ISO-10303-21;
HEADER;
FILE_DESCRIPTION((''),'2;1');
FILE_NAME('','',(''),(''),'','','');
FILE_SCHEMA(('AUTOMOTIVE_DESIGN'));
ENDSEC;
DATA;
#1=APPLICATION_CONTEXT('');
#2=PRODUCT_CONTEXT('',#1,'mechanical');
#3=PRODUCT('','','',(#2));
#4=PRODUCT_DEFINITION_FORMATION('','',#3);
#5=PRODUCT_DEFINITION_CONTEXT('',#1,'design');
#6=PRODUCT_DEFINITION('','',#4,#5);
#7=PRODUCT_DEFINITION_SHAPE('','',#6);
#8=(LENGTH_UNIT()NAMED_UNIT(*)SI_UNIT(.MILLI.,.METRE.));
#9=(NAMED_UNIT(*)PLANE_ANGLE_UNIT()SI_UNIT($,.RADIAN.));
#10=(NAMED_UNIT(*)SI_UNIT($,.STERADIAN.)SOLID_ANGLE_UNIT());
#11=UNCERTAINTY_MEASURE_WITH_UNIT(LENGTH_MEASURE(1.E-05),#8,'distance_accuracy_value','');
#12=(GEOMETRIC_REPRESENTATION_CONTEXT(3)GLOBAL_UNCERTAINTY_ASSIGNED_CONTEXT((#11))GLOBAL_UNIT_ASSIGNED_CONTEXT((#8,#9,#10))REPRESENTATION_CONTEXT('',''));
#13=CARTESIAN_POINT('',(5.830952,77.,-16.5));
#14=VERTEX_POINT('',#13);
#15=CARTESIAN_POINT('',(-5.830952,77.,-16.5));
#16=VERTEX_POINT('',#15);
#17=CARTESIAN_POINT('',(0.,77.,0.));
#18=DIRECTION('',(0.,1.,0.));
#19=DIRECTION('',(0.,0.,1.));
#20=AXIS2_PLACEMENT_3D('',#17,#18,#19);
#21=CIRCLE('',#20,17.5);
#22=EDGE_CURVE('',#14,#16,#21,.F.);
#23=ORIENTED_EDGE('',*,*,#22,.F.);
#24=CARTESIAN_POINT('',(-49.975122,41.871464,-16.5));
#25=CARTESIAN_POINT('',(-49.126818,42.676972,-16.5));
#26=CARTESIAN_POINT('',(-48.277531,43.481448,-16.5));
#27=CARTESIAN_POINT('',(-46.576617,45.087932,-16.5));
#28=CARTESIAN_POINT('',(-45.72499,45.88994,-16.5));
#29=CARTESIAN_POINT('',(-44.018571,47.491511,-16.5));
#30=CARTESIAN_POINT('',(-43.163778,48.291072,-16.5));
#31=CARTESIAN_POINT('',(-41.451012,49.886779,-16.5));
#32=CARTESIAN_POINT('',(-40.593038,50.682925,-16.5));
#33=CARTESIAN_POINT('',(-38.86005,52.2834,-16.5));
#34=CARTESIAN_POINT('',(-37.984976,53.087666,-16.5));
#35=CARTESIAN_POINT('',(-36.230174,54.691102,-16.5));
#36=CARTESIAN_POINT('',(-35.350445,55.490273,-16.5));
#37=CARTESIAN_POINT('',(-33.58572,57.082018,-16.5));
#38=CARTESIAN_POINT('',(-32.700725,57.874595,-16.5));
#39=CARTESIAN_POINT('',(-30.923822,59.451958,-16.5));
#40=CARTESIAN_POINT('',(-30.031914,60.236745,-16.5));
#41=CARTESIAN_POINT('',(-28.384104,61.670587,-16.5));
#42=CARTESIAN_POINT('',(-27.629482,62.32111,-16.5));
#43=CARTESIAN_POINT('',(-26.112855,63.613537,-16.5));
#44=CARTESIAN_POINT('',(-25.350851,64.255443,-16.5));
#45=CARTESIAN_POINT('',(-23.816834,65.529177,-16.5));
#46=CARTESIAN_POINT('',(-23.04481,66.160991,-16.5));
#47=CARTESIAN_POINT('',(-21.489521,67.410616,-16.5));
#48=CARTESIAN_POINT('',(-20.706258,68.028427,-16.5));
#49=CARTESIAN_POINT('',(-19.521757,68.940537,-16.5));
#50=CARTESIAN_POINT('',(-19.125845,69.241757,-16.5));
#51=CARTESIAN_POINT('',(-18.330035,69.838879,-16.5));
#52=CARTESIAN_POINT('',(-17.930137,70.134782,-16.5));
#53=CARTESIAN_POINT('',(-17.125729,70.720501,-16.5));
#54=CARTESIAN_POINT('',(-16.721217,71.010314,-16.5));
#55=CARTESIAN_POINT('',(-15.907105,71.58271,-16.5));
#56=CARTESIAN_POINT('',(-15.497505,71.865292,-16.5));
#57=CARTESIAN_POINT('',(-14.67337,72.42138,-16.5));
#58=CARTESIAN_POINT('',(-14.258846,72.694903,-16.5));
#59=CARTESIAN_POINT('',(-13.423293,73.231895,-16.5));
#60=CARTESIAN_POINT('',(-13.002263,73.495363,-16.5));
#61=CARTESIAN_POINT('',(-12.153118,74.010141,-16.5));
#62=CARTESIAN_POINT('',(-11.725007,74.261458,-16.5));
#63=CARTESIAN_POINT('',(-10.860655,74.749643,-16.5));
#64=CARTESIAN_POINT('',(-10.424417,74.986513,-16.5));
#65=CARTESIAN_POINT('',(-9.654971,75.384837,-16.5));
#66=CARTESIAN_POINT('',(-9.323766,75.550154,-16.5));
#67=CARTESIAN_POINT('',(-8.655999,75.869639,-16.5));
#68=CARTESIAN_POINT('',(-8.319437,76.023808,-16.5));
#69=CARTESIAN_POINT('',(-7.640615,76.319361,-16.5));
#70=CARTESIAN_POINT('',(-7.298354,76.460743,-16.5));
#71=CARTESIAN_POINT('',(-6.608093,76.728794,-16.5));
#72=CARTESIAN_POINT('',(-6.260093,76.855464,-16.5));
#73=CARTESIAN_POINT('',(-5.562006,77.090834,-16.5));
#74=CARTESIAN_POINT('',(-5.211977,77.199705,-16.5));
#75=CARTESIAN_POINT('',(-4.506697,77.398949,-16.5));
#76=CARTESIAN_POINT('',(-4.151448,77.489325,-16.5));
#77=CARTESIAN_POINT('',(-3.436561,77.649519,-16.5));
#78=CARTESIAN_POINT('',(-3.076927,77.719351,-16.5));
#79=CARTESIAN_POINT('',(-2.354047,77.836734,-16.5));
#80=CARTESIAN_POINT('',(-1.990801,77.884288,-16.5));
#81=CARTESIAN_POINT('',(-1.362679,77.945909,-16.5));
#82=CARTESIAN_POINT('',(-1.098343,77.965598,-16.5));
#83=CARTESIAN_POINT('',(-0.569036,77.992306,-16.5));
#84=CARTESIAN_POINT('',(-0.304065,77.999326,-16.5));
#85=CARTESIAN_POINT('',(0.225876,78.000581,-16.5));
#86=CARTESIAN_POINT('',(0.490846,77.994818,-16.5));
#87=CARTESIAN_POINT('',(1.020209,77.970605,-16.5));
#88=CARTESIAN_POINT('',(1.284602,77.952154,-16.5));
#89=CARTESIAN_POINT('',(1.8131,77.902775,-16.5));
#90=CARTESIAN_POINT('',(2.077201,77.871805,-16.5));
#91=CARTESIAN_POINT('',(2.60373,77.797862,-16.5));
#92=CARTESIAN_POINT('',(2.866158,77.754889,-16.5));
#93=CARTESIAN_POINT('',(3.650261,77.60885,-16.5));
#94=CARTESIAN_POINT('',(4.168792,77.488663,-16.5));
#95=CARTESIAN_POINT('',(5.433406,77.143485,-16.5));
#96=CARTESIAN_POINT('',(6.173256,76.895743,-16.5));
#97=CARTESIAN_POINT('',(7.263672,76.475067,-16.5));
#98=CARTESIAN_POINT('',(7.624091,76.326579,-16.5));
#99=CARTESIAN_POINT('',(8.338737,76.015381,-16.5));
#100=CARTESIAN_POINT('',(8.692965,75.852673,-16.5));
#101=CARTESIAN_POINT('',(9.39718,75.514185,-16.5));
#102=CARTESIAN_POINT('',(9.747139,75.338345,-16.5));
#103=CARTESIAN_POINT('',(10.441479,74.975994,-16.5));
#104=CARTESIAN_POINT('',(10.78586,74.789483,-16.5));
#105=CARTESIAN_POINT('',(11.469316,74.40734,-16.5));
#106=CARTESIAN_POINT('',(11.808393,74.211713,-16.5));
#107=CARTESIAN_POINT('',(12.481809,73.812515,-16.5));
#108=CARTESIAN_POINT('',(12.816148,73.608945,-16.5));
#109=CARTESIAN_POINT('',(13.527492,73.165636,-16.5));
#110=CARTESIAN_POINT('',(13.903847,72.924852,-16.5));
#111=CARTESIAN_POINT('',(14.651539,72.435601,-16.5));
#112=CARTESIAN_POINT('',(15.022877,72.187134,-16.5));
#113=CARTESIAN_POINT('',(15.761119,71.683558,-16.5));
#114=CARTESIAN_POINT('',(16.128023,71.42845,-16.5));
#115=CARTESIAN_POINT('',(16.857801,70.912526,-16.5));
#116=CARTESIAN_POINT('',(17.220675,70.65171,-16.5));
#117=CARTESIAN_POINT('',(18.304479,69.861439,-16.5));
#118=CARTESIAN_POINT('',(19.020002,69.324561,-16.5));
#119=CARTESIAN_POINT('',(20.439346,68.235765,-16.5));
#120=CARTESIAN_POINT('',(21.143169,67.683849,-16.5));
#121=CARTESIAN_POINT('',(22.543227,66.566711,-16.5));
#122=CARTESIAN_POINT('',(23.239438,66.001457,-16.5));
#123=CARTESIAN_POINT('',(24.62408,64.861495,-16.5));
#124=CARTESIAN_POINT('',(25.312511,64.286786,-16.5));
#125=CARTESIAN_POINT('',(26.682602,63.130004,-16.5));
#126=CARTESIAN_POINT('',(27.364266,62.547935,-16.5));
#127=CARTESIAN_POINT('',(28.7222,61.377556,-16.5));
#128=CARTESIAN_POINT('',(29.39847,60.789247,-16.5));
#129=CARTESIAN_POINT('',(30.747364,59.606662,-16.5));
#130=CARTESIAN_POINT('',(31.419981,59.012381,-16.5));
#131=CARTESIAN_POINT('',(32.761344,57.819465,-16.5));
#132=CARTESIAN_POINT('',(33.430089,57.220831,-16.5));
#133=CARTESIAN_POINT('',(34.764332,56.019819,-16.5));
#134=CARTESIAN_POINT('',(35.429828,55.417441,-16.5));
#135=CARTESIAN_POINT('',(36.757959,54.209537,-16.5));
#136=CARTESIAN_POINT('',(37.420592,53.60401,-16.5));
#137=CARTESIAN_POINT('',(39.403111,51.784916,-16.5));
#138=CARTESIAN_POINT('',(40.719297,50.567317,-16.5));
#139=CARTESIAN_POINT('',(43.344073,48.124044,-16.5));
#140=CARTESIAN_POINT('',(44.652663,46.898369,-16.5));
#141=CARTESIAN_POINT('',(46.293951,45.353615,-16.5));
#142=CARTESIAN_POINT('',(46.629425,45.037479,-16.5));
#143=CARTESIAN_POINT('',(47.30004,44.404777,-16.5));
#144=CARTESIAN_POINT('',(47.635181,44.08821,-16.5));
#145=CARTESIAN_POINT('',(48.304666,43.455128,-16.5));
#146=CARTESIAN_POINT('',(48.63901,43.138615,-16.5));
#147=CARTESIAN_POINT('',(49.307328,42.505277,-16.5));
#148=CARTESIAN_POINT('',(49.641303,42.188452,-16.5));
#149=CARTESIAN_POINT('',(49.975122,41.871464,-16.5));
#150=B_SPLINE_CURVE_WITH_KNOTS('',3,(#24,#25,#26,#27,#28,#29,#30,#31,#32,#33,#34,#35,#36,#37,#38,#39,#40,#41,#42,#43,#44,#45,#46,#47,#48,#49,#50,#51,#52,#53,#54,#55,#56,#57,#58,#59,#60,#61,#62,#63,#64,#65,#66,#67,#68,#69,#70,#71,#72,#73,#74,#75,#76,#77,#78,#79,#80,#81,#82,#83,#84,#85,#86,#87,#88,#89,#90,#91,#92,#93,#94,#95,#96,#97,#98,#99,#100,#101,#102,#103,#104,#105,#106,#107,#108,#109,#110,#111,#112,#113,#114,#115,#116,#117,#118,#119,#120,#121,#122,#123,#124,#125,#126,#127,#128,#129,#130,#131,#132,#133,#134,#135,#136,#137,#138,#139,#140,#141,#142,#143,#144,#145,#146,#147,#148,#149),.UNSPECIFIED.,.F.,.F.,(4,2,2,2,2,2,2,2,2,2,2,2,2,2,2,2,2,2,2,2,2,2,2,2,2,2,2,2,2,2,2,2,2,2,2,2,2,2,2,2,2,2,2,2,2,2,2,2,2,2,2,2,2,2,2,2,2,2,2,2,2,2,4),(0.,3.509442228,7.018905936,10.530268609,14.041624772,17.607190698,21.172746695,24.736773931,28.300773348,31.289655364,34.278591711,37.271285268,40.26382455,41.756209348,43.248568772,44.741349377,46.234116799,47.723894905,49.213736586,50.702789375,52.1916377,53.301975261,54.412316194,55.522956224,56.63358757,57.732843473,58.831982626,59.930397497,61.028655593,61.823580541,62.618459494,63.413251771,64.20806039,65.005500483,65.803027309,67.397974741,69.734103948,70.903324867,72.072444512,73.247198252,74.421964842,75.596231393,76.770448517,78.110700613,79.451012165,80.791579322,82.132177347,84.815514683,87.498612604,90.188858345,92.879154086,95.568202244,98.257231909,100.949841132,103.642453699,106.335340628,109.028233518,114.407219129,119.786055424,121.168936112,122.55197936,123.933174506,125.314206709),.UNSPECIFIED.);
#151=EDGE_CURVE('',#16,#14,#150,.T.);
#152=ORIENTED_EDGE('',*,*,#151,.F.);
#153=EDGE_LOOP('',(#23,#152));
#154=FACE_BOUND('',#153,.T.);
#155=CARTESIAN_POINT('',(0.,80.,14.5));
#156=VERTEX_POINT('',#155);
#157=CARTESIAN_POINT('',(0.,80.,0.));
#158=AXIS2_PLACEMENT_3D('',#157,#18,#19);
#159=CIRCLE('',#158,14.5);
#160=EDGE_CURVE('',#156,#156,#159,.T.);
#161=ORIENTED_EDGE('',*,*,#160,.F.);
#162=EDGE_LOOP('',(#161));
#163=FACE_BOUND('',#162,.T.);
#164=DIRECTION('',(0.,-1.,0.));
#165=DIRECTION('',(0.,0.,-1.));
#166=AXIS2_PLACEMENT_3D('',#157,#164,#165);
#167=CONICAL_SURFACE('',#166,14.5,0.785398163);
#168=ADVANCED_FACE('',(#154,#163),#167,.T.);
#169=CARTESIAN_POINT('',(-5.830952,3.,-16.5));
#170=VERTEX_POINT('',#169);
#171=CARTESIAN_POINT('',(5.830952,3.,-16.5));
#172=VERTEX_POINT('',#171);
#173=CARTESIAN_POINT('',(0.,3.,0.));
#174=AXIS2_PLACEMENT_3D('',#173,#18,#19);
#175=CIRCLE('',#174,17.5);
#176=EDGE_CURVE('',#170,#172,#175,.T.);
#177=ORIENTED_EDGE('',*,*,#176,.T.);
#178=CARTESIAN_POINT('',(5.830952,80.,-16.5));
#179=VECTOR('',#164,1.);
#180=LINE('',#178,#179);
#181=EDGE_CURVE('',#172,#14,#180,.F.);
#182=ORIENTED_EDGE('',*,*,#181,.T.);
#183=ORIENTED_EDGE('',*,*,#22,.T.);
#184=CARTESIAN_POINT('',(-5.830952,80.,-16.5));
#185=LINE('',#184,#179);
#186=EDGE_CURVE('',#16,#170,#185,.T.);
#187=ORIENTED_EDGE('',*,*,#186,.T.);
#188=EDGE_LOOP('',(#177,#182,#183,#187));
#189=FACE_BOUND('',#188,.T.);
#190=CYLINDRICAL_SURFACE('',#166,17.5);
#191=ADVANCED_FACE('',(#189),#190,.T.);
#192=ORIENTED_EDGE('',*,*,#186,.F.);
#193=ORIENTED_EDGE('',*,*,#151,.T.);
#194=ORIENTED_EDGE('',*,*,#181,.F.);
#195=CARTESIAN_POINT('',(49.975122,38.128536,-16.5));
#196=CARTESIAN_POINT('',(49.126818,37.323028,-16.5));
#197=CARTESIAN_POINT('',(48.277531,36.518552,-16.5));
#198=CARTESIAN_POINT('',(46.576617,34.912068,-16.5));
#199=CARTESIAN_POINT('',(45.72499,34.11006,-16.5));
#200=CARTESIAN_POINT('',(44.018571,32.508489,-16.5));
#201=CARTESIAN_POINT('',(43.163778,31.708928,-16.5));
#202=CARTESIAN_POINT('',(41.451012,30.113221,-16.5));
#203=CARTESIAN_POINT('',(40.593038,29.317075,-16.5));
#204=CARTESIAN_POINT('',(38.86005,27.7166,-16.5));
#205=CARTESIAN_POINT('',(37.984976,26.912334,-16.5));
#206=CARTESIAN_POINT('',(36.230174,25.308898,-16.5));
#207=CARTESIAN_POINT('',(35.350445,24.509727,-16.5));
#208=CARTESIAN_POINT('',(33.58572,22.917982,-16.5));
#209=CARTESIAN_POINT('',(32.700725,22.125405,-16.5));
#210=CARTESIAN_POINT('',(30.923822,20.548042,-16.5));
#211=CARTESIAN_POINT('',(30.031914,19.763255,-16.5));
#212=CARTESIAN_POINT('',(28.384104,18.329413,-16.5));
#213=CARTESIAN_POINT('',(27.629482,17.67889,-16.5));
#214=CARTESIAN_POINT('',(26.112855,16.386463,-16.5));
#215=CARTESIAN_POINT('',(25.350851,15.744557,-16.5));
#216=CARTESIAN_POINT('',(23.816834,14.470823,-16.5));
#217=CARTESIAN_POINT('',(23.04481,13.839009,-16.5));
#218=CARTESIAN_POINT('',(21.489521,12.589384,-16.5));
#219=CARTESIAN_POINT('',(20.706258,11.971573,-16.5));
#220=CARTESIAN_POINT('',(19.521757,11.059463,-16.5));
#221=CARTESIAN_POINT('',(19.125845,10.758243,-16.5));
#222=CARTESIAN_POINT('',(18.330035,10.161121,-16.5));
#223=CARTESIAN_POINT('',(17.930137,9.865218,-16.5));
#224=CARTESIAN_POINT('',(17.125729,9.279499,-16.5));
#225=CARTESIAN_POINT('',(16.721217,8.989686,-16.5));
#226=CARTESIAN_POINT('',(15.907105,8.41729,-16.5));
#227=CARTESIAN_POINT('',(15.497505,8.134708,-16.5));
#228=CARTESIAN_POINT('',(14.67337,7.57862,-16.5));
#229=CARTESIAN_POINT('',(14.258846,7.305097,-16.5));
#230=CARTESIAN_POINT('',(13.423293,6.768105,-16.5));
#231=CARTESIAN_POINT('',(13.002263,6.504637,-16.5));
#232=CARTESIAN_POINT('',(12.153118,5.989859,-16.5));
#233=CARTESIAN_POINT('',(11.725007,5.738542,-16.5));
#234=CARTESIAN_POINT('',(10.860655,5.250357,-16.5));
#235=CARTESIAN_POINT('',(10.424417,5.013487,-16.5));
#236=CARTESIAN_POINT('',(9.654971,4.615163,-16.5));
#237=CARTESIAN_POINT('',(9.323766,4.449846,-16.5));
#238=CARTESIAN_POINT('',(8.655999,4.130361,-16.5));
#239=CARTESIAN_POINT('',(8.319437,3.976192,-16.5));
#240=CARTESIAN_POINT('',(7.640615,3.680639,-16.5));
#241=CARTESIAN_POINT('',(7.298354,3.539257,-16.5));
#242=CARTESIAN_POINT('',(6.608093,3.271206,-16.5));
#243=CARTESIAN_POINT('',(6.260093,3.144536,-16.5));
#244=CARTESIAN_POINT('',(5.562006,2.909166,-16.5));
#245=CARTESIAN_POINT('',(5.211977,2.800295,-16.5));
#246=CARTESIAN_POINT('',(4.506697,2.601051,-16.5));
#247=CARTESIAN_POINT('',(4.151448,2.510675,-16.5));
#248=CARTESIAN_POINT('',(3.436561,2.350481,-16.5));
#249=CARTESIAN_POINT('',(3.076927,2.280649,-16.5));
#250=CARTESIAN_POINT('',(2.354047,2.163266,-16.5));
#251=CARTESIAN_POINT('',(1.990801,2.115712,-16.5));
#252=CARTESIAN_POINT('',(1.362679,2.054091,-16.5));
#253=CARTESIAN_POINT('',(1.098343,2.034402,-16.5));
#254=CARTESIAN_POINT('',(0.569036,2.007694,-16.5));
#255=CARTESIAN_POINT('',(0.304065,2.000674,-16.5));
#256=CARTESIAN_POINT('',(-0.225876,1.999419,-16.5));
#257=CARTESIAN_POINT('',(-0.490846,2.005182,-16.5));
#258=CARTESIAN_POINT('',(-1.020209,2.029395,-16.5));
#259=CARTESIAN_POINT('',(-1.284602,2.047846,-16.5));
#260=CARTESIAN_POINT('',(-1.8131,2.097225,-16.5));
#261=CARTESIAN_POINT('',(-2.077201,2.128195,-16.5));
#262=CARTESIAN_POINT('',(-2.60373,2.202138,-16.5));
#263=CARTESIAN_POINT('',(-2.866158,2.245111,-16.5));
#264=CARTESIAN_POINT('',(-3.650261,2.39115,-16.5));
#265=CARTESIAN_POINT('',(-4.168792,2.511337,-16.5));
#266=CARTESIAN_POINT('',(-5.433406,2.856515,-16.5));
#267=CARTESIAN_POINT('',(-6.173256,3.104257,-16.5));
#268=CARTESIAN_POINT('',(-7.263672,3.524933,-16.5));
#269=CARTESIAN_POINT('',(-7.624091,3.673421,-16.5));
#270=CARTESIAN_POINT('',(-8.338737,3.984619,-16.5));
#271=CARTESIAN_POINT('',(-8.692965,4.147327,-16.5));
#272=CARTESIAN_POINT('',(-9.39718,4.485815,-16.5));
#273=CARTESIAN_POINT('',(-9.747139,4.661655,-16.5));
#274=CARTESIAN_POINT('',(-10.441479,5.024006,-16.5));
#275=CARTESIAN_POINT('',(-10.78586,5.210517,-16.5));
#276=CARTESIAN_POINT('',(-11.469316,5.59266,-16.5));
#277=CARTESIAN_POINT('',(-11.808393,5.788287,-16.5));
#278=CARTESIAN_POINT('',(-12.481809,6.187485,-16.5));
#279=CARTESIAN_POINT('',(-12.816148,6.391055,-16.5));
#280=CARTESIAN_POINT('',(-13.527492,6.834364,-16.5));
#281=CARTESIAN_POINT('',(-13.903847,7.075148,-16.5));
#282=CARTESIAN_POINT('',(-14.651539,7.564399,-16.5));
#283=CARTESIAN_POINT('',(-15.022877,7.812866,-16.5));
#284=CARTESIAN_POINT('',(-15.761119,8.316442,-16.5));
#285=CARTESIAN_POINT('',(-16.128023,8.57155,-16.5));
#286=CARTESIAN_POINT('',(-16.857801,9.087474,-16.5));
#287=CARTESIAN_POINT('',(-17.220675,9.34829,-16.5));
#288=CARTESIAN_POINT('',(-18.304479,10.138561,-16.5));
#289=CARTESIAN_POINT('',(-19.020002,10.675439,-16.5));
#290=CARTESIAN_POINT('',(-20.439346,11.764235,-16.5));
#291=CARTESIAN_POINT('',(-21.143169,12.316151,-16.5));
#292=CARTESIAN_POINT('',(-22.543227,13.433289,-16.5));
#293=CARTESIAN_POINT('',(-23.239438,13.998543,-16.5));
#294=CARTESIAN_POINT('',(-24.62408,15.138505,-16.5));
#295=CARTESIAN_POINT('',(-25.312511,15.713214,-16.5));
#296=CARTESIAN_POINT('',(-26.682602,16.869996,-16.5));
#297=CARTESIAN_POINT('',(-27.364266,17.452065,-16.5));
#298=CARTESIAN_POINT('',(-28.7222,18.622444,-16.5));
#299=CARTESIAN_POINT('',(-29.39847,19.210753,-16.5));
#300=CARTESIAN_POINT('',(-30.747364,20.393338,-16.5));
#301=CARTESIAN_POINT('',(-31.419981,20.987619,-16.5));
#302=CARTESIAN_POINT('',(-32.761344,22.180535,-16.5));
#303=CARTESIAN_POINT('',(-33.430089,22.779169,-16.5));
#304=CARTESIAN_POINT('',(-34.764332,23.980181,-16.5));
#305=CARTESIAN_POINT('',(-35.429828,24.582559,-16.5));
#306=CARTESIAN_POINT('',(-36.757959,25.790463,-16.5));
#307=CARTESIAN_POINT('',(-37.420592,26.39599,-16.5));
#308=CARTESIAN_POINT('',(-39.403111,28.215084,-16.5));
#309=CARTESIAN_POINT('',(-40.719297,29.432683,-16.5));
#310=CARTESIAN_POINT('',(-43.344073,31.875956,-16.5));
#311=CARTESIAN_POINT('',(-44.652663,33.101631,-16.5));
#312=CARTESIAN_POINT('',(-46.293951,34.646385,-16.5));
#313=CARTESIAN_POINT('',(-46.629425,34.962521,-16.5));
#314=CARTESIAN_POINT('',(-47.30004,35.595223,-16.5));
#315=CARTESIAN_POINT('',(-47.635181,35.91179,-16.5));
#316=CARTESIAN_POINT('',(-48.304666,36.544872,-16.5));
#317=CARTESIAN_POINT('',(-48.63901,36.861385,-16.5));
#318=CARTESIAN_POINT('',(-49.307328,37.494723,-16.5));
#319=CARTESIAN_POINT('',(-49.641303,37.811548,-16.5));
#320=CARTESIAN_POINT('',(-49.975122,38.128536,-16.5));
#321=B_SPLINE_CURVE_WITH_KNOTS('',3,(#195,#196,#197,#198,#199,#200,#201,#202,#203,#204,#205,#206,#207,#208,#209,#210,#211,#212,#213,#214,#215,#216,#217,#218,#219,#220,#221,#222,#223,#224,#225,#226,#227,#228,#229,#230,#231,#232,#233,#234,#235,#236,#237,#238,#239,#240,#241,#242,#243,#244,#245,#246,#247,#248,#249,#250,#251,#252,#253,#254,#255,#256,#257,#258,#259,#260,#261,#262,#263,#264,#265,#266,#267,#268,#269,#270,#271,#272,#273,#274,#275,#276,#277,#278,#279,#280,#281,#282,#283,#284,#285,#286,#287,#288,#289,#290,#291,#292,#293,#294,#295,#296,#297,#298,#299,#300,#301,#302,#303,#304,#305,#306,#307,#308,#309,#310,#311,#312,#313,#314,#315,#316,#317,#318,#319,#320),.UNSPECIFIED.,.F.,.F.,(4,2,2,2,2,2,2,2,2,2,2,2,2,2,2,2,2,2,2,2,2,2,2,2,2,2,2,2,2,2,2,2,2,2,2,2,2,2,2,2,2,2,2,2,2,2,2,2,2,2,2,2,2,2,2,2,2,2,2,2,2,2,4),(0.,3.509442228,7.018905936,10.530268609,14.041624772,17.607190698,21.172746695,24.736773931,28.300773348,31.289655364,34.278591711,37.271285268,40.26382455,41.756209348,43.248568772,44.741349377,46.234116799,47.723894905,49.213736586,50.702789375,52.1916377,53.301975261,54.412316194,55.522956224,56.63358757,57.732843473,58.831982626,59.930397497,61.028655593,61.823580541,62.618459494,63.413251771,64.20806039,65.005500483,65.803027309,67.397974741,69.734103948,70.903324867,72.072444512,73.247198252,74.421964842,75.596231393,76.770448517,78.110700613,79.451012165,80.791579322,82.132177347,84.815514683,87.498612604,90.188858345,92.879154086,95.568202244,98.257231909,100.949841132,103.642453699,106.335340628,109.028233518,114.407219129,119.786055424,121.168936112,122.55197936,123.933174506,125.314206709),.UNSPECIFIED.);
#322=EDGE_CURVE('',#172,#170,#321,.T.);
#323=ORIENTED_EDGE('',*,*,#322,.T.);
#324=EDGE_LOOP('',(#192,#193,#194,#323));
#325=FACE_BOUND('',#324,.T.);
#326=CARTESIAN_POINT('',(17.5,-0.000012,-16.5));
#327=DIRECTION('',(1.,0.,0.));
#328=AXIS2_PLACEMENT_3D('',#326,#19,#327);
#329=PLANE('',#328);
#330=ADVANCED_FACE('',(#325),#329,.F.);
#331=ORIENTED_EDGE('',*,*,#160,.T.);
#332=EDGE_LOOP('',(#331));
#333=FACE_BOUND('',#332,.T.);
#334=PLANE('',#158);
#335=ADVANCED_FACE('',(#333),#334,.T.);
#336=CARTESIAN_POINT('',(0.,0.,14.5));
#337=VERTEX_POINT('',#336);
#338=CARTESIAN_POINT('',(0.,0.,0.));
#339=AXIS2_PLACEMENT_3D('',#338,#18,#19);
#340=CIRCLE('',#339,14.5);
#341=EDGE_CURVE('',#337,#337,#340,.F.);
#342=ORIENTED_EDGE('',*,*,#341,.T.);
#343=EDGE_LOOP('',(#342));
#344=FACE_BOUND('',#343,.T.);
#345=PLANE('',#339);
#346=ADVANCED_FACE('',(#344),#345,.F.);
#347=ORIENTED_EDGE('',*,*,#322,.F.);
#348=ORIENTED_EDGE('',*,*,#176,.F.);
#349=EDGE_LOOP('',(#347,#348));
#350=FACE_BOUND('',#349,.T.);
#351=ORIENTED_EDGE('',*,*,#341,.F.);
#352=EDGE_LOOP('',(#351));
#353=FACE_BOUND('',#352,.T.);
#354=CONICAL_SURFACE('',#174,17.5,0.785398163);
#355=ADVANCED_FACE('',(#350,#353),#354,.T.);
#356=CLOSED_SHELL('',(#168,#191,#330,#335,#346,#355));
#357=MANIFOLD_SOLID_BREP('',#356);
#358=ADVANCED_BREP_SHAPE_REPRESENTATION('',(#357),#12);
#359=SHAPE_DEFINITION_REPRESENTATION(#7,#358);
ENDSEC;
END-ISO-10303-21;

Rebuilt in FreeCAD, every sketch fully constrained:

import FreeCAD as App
import Part
import Sketcher
from FreeCAD import Vector


def edges_at(feature, points):
    """Names of the edges that pass closest to the given points."""
    edges = feature.Shape.Edges
    near = lambda p: min(range(len(edges)), key=lambda i: edges[i].distToShape(Part.Vertex(*p))[0])
    return sorted({f"Edge{near(p) + 1}" for p in points})

doc = App.newDocument("Part")
params = doc.addObject("Spreadsheet::Sheet", "Params")
for row, (alias, value) in enumerate([
    ("sketch1_diameter", "35 mm"),
    ("pad1_length", "80 mm"),
    ("chamfer_size", "3 mm"),
    ("sketch2_width", "35 mm"),
    ("sketch2_height", "5 mm"),
], start=1):
    params.set(f"A{row}", alias)
    params.set(f"B{row}", "=" + value)
    params.setAlias(f"B{row}", alias)

body = doc.addObject("PartDesign::Body", "Body")

sketch1 = body.newObject("Sketcher::SketchObject", "Sketch")
sketch1.AttachmentSupport = (doc.getObject("XZ_Plane"), [""])
sketch1.MapMode = "FlatFace"
sketch1.addGeometry(Part.Circle(Vector(0, 0, 0), Vector(0, 0, 1), 18), False)
sketch1.addConstraint([
    Sketcher.Constraint("Coincident", 0, 3, -1, 1),
    Sketcher.Constraint("Diameter", 0, 35.0),
])
sketch1.setExpression("Constraints[1]", "Params.sketch1_diameter")
pad1 = body.newObject("PartDesign::Pad", "Pad")
pad1.Profile = sketch1
pad1.setExpression("Length", "Params.pad1_length")
pad1.Reversed = True
doc.recompute()

chamfer = body.newObject("PartDesign::Chamfer", "Chamfer")
chamfer.Base = (pad1, edges_at(pad1, [(0, 0, -17.5), (0, 80, -17.5)]))
chamfer.setExpression("Size", "Params.chamfer_size")

sketch2 = body.newObject("Sketcher::SketchObject", "Sketch001")
sketch2.AttachmentSupport = (doc.getObject("XZ_Plane"), [""])
sketch2.MapMode = "FlatFace"
sketch2.addGeometry([
    Part.LineSegment(Vector(-18, -22, 0), Vector(-18, -16, 0)),
    Part.LineSegment(Vector(-18, -16, 0), Vector(18, -16, 0)),
    Part.LineSegment(Vector(18, -16, 0), Vector(18, -22, 0)),
    Part.LineSegment(Vector(18, -22, 0), Vector(-18, -22, 0)),
], False)
sketch2.addConstraint([
    Sketcher.Constraint("Coincident", 0, 2, 1, 1),
    Sketcher.Constraint("Coincident", 1, 2, 2, 1),
    Sketcher.Constraint("Coincident", 2, 2, 3, 1),
    Sketcher.Constraint("Coincident", 3, 2, 0, 1),
    Sketcher.Constraint("Vertical", 0),
    Sketcher.Constraint("Horizontal", 1),
    Sketcher.Constraint("Vertical", 2),
    Sketcher.Constraint("Horizontal", 3),
    Sketcher.Constraint("DistanceX", 1, 1, 1, 2, 35.0),
    Sketcher.Constraint("DistanceY", 0, 1, 0, 2, 5.0),
    Sketcher.Constraint("DistanceX", 0, 2, -1, 1, 17.5),
    Sketcher.Constraint("DistanceY", 0, 2, -1, 1, 16.5),
])
sketch2.setExpression("Constraints[8]", "Params.sketch2_width")
sketch2.setExpression("Constraints[9]", "Params.sketch2_height")
pocket1 = body.newObject("PartDesign::Pocket", "Pocket")
pocket1.Profile = sketch2
pocket1.Type = "ThroughAll"
pocket1.Midplane = True

doc.recompute()
